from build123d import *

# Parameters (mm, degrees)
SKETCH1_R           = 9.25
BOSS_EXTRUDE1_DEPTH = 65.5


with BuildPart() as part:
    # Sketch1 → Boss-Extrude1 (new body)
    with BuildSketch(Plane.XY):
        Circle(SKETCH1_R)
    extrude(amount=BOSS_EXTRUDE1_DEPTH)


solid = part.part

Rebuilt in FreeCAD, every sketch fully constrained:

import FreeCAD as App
import Part
import Sketcher
from FreeCAD import Vector

doc = App.newDocument("Part")
body = doc.addObject("PartDesign::Body", "Body")

sketch1 = doc.addObject("Sketcher::SketchObject", "Sketch")
body.addObject(sketch1)
sketch1.AttachmentSupport = (doc.XY_Plane, [""])
sketch1.MapMode = "FlatFace"
sketch1.addGeometry(Part.Circle(Vector(0, 0, 0), Vector(0, 0, 1), 9.25), False)
sketch1.addConstraint(Sketcher.Constraint("Coincident", 0, 3, -1, 1))
sketch1.addConstraint(Sketcher.Constraint("Diameter", 0, 18.5))
pad1 = doc.addObject("PartDesign::Pad", "Pad")
body.addObject(pad1)
pad1.Profile = sketch1
pad1.Length = 65.5

doc.recompute()
